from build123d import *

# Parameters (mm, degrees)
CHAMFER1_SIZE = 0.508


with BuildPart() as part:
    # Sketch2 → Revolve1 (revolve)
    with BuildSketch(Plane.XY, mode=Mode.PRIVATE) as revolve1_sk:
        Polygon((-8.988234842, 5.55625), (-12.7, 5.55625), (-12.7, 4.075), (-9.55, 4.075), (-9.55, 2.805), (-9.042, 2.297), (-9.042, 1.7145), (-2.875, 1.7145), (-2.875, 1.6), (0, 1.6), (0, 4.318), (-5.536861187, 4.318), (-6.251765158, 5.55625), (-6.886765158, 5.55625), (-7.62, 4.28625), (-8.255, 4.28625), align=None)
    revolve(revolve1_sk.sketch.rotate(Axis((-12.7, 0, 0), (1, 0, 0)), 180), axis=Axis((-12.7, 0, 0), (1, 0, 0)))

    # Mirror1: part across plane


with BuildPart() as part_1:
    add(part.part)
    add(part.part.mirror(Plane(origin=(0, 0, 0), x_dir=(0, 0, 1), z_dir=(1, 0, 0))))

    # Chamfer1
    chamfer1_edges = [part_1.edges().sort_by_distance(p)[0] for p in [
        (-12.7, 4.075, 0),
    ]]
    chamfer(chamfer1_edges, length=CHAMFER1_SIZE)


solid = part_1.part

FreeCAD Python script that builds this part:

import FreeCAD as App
import Part
import Sketcher

V = App.Vector
Q = App.Units.Quantity


def edges_at(feature, points):
    """Names of the edges that pass closest to the given points."""
    edges = feature.Shape.Edges
    near = lambda p: min(range(len(edges)), key=lambda i: edges[i].distToShape(Part.Vertex(*p))[0])
    return sorted({f"Edge{near(p) + 1}" for p in points})


def add_polygon(sketch, points):
    """Adds a closed chain of lines whose ends are joined by coincident constraints."""
    first, n = sketch.GeometryCount, len(points)
    for a, b in zip(points, points[1:] + points[:1]):
        sketch.addGeometry(Part.LineSegment(App.Vector(*a, 0), App.Vector(*b, 0)), False)
    for i in range(n):
        sketch.addConstraint(Sketcher.Constraint("Coincident", first + i, 2, first + (i + 1) % n, 1))

doc = App.newDocument("Part")
params = doc.addObject("Spreadsheet::Sheet", "Params")
for row, (alias, value) in enumerate([
    ("sketch1_height", "0.05 in"),
    ("sketch1_width", "0.025 in"),
    ("revolution_angle", "360 deg"),
    ("chamfer_size", "0.02 in"),
], start=1):
    params.set(f"A{row}", alias)
    params.set(f"B{row}", "=" + value)
    params.setAlias(f"B{row}", alias)

body = doc.addObject("PartDesign::Body", "Body")

sketch1 = doc.addObject("Sketcher::SketchObject", "Sketch")
body.addObject(sketch1)
sketch1.AttachmentSupport = (doc.XY_Plane, [""])
sketch1.MapMode = "FlatFace"
add_polygon(sketch1, [(-8.99, 5.56), (-12.7, 5.56), (-12.7, 4.08), (-9.55, 4.08), (-9.55, 2.81), (-9.04, 2.3), (-9.04, 1.71), (-2.88, 1.71), (-2.88, 1.6), (0, 1.6), (0, 4.32), (-5.54, 4.32), (-6.25, 5.56), (-6.89, 5.56), (-7.62, 4.29), (-8.26, 4.29)])
sketch1.addConstraint(Sketcher.Constraint("Horizontal", 0))
sketch1.addConstraint(Sketcher.Constraint("Vertical", 1))
sketch1.addConstraint(Sketcher.Constraint("Horizontal", 2))
sketch1.addConstraint(Sketcher.Constraint("Vertical", 3))
sketch1.addConstraint(Sketcher.Constraint("Vertical", 5))
sketch1.addConstraint(Sketcher.Constraint("Horizontal", 6))
sketch1.addConstraint(Sketcher.Constraint("Vertical", 7))
sketch1.addConstraint(Sketcher.Constraint("Horizontal", 8))
sketch1.addConstraint(Sketcher.Constraint("Vertical", 9))
sketch1.addConstraint(Sketcher.Constraint("Horizontal", 10))
sketch1.addConstraint(Sketcher.Constraint("Horizontal", 12))
sketch1.addConstraint(Sketcher.Constraint("Horizontal", 14))
sketch1.addConstraint(Sketcher.Constraint("PointOnObject", 8, 2, -2))
sketch1.addConstraint(Sketcher.Constraint("Parallel", 11, 15))
sketch1.addConstraint(Sketcher.Constraint("Horizontal", 0, 2, 11, 2))
sketch1.addConstraint(Sketcher.Constraint("Equal", 12, 14))
sketch1.addConstraint(Sketcher.Constraint("Equal", 13, 15))
sketch1.addConstraint(Sketcher.Constraint("Angle", 4, Q("-45 deg")))
sketch1.addConstraint(Sketcher.Constraint("Angle", 11, Q("120 deg")))
sketch1.addConstraint(Sketcher.Constraint("DistanceY", 3, 2, 3, 1, Q("0.05 in")))
sketch1.addConstraint(Sketcher.Constraint("DistanceX", 0, 2, -1, 1, Q("0.5 in")))
sketch1.addConstraint(Sketcher.Constraint("DistanceX", 13, 2, -1, 1, Q("0.3 in")))
sketch1.addConstraint(Sketcher.Constraint("DistanceX", 12, 2, 12, 1, Q("0.025 in")))
sketch1.addConstraint(Sketcher.Constraint("DistanceY", -1, 1, 9, 2, Q("0.17 in")))
sketch1.addConstraint(Sketcher.Constraint("DistanceX", 3, 2, 4, 2, Q("0.02 in")))
sketch1.addConstraint(Sketcher.Constraint("DistanceY", 13, 2, 12, 2, Q("0.05 in")))
sketch1.addConstraint(Sketcher.Constraint("DistanceY", -1, 1, 0, 2, Q("0.21875 in")))
sketch1.addConstraint(Sketcher.Constraint("DistanceX", 2, 1, 2, 2, Q("3.15 mm")))
sketch1.addConstraint(Sketcher.Constraint("DistanceX", 6, 1, 6, 2, Q("6.167 mm")))
sketch1.addConstraint(Sketcher.Constraint("DistanceY", 5, 2, 5, 1, Q("0.5825 mm")))
sketch1.addConstraint(Sketcher.Constraint("DistanceY", 7, 2, 7, 1, Q("0.1145 mm")))
sketch1.addConstraint(Sketcher.Constraint("DistanceY", 9, 1, 9, 2, Q("2.718 mm")))
sketch1.setExpression("Constraints[35]", "Params.sketch1_height")
sketch1.setExpression("Constraints[38]", "Params.sketch1_width")
revolution = doc.addObject("PartDesign::Revolution", "Revolution")
body.addObject(revolution)
revolution.Profile = sketch1
revolution.ReferenceAxis = (sketch1, ["H_Axis"])
revolution.setExpression("Angle", "Params.revolution_angle")
body2 = doc.addObject("PartDesign::Body", "Body001")
doc.recompute()

body2.BaseFeature = body
doc.recompute()

mirroring = doc.addObject("Part::Mirroring", "Mirroring")
mirroring.Source = body
mirroring.Base = V(0, 0, 0)
mirroring.Normal = V(1, 0, 0)
body3 = doc.addObject("PartDesign::Body", "Body002")
body3.BaseFeature = mirroring
boolean = doc.addObject("PartDesign::Boolean", "Boolean")
body2.addObject(boolean)
boolean.Type = "Fuse"
boolean.addObjects([body3])
doc.recompute()

chamfer = doc.addObject("PartDesign::Chamfer", "Chamfer")
body2.addObject(chamfer)
chamfer.Base = (boolean, edges_at(boolean, [(-12.7, 4.075, 0)]))
chamfer.setExpression("Size", "Params.chamfer_size")
mirroring.Visibility = False

doc.recompute()
